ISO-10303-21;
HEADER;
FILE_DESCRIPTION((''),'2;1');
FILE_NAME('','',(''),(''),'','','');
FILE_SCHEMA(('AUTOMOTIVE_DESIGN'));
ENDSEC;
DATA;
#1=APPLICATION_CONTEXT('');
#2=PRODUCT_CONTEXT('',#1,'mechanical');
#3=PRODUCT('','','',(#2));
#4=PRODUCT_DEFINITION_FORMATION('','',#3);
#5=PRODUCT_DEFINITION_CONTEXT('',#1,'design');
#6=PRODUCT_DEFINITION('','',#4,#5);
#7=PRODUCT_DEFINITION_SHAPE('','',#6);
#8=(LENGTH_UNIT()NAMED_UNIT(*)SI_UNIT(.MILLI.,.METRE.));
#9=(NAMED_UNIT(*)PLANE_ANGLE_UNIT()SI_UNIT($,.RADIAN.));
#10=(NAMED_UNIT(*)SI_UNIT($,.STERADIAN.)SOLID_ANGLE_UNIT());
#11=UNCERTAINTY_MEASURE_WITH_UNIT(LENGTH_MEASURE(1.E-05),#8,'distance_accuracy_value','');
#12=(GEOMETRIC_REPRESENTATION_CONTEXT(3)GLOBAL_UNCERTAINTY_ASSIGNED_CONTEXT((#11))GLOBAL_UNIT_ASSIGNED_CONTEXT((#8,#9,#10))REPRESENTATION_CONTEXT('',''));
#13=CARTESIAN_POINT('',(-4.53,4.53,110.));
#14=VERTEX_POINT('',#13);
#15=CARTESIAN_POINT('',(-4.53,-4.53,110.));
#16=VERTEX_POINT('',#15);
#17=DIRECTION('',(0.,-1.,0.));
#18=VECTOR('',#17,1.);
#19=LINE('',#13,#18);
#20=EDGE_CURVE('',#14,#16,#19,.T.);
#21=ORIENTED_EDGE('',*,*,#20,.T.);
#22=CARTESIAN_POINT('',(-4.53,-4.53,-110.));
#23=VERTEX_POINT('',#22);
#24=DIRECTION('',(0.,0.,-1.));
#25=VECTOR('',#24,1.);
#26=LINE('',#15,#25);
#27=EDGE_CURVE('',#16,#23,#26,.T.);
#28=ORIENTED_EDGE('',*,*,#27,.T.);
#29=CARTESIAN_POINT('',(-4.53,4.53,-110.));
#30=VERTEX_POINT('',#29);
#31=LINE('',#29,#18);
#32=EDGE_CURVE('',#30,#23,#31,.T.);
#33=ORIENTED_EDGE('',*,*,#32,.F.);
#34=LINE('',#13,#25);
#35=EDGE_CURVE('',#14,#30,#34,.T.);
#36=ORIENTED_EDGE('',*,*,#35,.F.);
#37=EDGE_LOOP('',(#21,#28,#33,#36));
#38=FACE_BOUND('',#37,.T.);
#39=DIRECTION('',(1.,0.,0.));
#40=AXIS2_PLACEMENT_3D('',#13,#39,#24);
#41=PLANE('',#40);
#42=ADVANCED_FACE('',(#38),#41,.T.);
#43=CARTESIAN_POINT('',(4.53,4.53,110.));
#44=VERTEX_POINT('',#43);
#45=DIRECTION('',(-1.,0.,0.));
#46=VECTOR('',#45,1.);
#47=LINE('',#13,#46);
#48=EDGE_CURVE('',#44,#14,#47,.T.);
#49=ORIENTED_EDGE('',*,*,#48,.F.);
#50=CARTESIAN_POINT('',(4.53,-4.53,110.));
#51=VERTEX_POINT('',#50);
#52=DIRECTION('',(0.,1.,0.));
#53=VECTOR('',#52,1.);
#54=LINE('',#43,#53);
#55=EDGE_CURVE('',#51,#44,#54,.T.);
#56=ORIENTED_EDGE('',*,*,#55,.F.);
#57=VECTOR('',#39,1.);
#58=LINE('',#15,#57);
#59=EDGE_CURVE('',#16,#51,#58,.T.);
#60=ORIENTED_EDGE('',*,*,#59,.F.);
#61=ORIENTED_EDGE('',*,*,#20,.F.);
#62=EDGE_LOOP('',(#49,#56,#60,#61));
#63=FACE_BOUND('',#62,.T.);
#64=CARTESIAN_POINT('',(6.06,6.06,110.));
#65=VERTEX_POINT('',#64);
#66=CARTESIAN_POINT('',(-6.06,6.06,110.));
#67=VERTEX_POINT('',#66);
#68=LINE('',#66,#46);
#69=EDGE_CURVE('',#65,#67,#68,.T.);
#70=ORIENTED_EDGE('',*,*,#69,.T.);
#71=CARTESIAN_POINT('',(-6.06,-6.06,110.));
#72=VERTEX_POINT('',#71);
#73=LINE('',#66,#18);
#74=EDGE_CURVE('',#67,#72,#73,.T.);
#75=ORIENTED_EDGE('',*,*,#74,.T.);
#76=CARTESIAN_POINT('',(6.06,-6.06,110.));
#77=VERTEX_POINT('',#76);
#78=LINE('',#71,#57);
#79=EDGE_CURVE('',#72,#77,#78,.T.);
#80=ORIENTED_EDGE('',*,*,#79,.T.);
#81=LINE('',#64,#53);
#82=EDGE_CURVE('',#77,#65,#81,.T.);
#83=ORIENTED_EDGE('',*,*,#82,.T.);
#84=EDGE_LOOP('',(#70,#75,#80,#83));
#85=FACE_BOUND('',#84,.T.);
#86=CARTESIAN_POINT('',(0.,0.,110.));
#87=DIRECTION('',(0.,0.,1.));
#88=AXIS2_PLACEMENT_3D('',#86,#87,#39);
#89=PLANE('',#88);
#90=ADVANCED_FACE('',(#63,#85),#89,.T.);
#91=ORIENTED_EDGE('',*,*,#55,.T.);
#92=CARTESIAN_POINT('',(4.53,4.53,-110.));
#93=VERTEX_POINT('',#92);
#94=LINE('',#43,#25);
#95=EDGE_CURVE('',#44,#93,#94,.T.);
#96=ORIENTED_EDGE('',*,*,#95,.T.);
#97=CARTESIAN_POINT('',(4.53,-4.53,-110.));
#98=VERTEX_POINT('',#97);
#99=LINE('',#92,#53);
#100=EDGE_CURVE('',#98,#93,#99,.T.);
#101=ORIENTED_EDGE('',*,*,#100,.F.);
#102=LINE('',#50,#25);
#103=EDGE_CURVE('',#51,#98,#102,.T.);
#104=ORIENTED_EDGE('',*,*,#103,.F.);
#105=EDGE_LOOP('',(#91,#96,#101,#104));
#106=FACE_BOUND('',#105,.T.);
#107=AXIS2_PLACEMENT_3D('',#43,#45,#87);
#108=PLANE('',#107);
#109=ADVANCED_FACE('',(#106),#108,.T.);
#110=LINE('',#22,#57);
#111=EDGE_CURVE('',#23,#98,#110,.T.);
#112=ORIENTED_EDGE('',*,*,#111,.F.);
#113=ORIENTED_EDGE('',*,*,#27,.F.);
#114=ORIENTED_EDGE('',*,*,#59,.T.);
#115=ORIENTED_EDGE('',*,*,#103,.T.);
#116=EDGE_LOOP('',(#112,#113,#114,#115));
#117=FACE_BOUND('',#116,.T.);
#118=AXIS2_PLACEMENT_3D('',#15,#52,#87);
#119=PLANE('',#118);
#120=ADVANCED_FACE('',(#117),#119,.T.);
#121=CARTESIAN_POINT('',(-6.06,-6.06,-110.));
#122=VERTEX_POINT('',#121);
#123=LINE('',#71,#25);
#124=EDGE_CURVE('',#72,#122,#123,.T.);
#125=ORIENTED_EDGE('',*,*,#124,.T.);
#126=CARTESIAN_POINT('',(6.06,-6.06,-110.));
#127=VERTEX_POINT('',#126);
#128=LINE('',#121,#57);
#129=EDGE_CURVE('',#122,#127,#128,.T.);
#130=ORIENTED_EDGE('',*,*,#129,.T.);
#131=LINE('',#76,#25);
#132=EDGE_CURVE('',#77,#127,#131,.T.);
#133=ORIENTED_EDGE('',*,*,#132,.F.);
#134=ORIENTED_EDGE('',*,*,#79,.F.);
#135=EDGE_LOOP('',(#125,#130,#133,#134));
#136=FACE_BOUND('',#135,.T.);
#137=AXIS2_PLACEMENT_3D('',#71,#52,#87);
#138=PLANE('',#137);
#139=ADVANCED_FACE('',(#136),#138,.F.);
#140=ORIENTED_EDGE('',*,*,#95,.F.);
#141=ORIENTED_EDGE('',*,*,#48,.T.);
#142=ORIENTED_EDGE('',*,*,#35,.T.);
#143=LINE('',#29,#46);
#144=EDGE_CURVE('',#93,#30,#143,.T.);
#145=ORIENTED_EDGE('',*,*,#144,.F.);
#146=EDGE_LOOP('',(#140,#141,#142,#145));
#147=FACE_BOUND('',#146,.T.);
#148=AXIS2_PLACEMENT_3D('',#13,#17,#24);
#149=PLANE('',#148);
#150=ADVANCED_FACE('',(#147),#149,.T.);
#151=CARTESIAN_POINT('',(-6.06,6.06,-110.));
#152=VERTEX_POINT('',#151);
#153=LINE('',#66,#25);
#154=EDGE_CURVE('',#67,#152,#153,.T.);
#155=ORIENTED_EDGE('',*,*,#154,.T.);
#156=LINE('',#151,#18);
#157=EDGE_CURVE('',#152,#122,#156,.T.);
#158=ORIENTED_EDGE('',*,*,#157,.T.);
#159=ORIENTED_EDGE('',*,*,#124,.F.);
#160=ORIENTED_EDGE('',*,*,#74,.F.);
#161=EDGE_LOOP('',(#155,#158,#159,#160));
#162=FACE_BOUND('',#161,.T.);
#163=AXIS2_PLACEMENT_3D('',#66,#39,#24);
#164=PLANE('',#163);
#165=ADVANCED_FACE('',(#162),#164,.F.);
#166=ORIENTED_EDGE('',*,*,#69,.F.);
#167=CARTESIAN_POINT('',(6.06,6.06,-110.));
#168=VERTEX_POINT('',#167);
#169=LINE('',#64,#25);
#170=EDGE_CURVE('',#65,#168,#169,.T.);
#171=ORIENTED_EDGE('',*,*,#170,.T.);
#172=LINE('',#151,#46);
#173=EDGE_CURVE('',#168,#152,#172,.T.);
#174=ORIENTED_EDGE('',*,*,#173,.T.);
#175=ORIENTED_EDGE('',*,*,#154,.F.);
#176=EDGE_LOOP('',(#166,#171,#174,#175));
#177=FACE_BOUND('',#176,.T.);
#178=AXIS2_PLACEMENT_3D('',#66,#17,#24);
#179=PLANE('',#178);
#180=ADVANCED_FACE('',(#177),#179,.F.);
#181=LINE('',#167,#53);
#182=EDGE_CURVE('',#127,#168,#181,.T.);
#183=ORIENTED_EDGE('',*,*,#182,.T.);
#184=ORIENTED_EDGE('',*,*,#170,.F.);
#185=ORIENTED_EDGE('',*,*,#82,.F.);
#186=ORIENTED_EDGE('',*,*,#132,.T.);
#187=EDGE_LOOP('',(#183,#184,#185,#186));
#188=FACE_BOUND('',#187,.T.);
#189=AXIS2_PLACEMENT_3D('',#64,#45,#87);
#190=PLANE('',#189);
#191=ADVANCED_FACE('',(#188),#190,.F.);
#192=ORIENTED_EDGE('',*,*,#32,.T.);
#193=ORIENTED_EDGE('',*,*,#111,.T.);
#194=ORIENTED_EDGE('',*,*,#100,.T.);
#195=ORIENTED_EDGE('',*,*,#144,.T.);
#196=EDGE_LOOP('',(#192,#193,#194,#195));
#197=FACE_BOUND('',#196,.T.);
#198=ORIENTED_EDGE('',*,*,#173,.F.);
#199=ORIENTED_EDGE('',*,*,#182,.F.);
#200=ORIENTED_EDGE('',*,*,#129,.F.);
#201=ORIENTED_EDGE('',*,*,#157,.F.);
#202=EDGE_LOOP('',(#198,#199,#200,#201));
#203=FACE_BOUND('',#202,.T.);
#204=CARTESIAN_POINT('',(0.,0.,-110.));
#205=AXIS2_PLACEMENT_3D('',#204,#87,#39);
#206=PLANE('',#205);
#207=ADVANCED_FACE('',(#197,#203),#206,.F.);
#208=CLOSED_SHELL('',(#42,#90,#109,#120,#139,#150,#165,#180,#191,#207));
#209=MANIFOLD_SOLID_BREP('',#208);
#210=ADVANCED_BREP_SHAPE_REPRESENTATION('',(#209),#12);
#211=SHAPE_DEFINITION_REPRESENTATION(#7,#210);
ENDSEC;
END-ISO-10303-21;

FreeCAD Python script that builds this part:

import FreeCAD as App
import Part
import Sketcher

V = App.Vector


def add_polygon(sketch, points):
    """Adds a closed chain of lines whose ends are joined by coincident constraints."""
    first, n = sketch.GeometryCount, len(points)
    for a, b in zip(points, points[1:] + points[:1]):
        sketch.addGeometry(Part.LineSegment(App.Vector(*a, 0), App.Vector(*b, 0)), False)
    for i in range(n):
        sketch.addConstraint(Sketcher.Constraint("Coincident", first + i, 2, first + (i + 1) % n, 1))

doc = App.newDocument("Part")
body = doc.addObject("PartDesign::Body", "Body")

# Sketch on XY plane
sketch1 = body.newObject("Sketcher::SketchObject", "Sketch")
sketch1.AttachmentSupport = (doc.getObject("XY_Plane"), [""])
sketch1.MapMode = "FlatFace"
add_polygon(sketch1, [(-6, 6), (-6, -6), (6, -6), (6, 6)])  # lines 0-3
add_polygon(sketch1, [(5, -5), (-5, -5), (-5, 5), (5, 5)])  # lines 4-7
sketch1.addConstraint([
    Sketcher.Constraint("Vertical", 0),
    Sketcher.Constraint("Horizontal", 1),
    Sketcher.Constraint("Vertical", 2),
    Sketcher.Constraint("Horizontal", 3),
    Sketcher.Constraint("Horizontal", 4),
    Sketcher.Constraint("Vertical", 5),
    Sketcher.Constraint("Horizontal", 6),
    Sketcher.Constraint("Vertical", 7),
    Sketcher.Constraint("Symmetric", 0, 2, 2, 2, -1, 1),
    Sketcher.Constraint("Symmetric", 4, 2, 6, 2, -1, 1),
    Sketcher.Constraint("Equal", 3, 0),
    Sketcher.Constraint("Equal", 6, 5),
    Sketcher.Constraint("DistanceX", 1, 1, 1, 2, 12.12),
    Sketcher.Constraint("DistanceX", 4, 2, 4, 1, 9.06),
])
pad1 = body.newObject("PartDesign::Pad", "Pad")
pad1.Profile = sketch1
pad1.Length = 220
pad1.Midplane = True

doc.recompute()
